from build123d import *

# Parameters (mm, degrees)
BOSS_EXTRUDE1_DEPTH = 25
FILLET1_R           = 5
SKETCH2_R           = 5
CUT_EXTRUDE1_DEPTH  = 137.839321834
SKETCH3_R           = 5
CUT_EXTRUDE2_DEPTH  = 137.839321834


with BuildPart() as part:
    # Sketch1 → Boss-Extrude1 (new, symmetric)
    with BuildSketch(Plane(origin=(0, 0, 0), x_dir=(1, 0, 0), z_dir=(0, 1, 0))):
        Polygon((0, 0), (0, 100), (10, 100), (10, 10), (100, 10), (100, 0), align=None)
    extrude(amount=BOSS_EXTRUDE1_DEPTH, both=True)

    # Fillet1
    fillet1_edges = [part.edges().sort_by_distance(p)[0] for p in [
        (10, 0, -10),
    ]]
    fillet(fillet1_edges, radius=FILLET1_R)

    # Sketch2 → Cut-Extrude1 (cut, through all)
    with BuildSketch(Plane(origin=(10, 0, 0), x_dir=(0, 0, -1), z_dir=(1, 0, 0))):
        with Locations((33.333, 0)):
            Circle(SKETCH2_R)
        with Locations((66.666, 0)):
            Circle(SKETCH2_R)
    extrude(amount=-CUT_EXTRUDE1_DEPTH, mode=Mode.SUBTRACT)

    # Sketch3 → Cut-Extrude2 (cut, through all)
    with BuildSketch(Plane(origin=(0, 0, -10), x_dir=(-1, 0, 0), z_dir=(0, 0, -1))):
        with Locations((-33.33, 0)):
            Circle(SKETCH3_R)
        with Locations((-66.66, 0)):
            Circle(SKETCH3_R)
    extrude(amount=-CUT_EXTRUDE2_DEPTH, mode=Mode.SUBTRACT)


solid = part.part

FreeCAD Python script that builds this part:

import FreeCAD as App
import Part
import Sketcher
from FreeCAD import Vector


def edges_at(feature, points):
    """Names of the edges that pass closest to the given points."""
    edges = feature.Shape.Edges
    near = lambda p: min(range(len(edges)), key=lambda i: edges[i].distToShape(Part.Vertex(*p))[0])
    return sorted({f"Edge{near(p) + 1}" for p in points})


def add_polygon(sketch, points):
    """Adds a closed chain of lines whose ends are joined by coincident constraints."""
    first, n = sketch.GeometryCount, len(points)
    for a, b in zip(points, points[1:] + points[:1]):
        sketch.addGeometry(Part.LineSegment(App.Vector(*a, 0), App.Vector(*b, 0)), False)
    for i in range(n):
        sketch.addConstraint(Sketcher.Constraint("Coincident", first + i, 2, first + (i + 1) % n, 1))

doc = App.newDocument("Part")
body = doc.addObject("PartDesign::Body", "Body")

sketch1 = body.newObject("Sketcher::SketchObject", "Sketch")
sketch1.AttachmentSupport = (doc.getObject("XZ_Plane"), [""])
sketch1.MapMode = "FlatFace"
add_polygon(sketch1, [(0, -100), (0, 0), (100, 0), (100, -10), (10, -10), (10, -100)])
sketch1.addConstraint(Sketcher.Constraint("Vertical", 0))
sketch1.addConstraint(Sketcher.Constraint("Horizontal", 1))
sketch1.addConstraint(Sketcher.Constraint("Vertical", 2))
sketch1.addConstraint(Sketcher.Constraint("Horizontal", 3))
sketch1.addConstraint(Sketcher.Constraint("Vertical", 4))
sketch1.addConstraint(Sketcher.Constraint("Horizontal", 5))
sketch1.addConstraint(Sketcher.Constraint("Coincident", 0, 2, -1, 1))
sketch1.addConstraint(Sketcher.Constraint("Equal", 1, 0))
sketch1.addConstraint(Sketcher.Constraint("Equal", 5, 2))
sketch1.addConstraint(Sketcher.Constraint("DistanceX", 1, 1, 1, 2, 100.0))
sketch1.addConstraint(Sketcher.Constraint("DistanceX", 3, 2, 3, 1, 90.0))
pad1 = body.newObject("PartDesign::Pad", "Pad")
pad1.Profile = sketch1
pad1.Length = 50
pad1.Midplane = True
doc.recompute()

fillet = body.newObject("PartDesign::Fillet", "Fillet")
fillet.Base = (pad1, edges_at(pad1, [(10, 0, -10)]))
fillet.Radius = 5

sketch2 = body.newObject("Sketcher::SketchObject", "Sketch001")
sketch2.AttachmentSupport = (doc.getObject("YZ_Plane"), [""])
sketch2.MapMode = "FlatFace"
sketch2.AttachmentOffset = App.Placement(Vector(0, 0, 10), App.Rotation())
sketch2.addGeometry(Part.Circle(Vector(0, -33, 0), Vector(0, 0, 1), 5), False)
sketch2.addGeometry(Part.Circle(Vector(0, -67, 0), Vector(0, 0, 1), 5), False)
sketch2.addConstraint(Sketcher.Constraint("Equal", 0, 1))
sketch2.addConstraint(Sketcher.Constraint("PointOnObject", 0, 3, -2))
sketch2.addConstraint(Sketcher.Constraint("PointOnObject", 1, 3, -2))
sketch2.addConstraint(Sketcher.Constraint("Diameter", 0, 10.0))
sketch2.addConstraint(Sketcher.Constraint("DistanceY", 0, 3, -1, 1, 33.333))
sketch2.addConstraint(Sketcher.Constraint("DistanceY", 1, 3, -1, 1, 66.666))
pocket1 = body.newObject("PartDesign::Pocket", "Pocket")
pocket1.Profile = sketch2
pocket1.Type = "ThroughAll"

sketch3 = body.newObject("Sketcher::SketchObject", "Sketch002")
sketch3.AttachmentSupport = (doc.getObject("XY_Plane"), [""])
sketch3.MapMode = "FlatFace"
sketch3.AttachmentOffset = App.Placement(Vector(0, 0, -10), App.Rotation())
sketch3.addGeometry(Part.Circle(Vector(33, 0, 0), Vector(0, 0, 1), 5), False)
sketch3.addGeometry(Part.Circle(Vector(67, 0, 0), Vector(0, 0, 1), 5), False)
sketch3.addConstraint(Sketcher.Constraint("Equal", 0, 1))
sketch3.addConstraint(Sketcher.Constraint("PointOnObject", 0, 3, -1))
sketch3.addConstraint(Sketcher.Constraint("PointOnObject", 1, 3, -1))
sketch3.addConstraint(Sketcher.Constraint("Diameter", 0, 10.0))
sketch3.addConstraint(Sketcher.Constraint("DistanceX", -1, 1, 0, 3, 33.33))
sketch3.addConstraint(Sketcher.Constraint("DistanceX", -1, 1, 1, 3, 66.66))
pocket2 = body.newObject("PartDesign::Pocket", "Pocket001")
pocket2.Profile = sketch3
pocket2.Type = "ThroughAll"
pocket2.Reversed = True

doc.recompute()
